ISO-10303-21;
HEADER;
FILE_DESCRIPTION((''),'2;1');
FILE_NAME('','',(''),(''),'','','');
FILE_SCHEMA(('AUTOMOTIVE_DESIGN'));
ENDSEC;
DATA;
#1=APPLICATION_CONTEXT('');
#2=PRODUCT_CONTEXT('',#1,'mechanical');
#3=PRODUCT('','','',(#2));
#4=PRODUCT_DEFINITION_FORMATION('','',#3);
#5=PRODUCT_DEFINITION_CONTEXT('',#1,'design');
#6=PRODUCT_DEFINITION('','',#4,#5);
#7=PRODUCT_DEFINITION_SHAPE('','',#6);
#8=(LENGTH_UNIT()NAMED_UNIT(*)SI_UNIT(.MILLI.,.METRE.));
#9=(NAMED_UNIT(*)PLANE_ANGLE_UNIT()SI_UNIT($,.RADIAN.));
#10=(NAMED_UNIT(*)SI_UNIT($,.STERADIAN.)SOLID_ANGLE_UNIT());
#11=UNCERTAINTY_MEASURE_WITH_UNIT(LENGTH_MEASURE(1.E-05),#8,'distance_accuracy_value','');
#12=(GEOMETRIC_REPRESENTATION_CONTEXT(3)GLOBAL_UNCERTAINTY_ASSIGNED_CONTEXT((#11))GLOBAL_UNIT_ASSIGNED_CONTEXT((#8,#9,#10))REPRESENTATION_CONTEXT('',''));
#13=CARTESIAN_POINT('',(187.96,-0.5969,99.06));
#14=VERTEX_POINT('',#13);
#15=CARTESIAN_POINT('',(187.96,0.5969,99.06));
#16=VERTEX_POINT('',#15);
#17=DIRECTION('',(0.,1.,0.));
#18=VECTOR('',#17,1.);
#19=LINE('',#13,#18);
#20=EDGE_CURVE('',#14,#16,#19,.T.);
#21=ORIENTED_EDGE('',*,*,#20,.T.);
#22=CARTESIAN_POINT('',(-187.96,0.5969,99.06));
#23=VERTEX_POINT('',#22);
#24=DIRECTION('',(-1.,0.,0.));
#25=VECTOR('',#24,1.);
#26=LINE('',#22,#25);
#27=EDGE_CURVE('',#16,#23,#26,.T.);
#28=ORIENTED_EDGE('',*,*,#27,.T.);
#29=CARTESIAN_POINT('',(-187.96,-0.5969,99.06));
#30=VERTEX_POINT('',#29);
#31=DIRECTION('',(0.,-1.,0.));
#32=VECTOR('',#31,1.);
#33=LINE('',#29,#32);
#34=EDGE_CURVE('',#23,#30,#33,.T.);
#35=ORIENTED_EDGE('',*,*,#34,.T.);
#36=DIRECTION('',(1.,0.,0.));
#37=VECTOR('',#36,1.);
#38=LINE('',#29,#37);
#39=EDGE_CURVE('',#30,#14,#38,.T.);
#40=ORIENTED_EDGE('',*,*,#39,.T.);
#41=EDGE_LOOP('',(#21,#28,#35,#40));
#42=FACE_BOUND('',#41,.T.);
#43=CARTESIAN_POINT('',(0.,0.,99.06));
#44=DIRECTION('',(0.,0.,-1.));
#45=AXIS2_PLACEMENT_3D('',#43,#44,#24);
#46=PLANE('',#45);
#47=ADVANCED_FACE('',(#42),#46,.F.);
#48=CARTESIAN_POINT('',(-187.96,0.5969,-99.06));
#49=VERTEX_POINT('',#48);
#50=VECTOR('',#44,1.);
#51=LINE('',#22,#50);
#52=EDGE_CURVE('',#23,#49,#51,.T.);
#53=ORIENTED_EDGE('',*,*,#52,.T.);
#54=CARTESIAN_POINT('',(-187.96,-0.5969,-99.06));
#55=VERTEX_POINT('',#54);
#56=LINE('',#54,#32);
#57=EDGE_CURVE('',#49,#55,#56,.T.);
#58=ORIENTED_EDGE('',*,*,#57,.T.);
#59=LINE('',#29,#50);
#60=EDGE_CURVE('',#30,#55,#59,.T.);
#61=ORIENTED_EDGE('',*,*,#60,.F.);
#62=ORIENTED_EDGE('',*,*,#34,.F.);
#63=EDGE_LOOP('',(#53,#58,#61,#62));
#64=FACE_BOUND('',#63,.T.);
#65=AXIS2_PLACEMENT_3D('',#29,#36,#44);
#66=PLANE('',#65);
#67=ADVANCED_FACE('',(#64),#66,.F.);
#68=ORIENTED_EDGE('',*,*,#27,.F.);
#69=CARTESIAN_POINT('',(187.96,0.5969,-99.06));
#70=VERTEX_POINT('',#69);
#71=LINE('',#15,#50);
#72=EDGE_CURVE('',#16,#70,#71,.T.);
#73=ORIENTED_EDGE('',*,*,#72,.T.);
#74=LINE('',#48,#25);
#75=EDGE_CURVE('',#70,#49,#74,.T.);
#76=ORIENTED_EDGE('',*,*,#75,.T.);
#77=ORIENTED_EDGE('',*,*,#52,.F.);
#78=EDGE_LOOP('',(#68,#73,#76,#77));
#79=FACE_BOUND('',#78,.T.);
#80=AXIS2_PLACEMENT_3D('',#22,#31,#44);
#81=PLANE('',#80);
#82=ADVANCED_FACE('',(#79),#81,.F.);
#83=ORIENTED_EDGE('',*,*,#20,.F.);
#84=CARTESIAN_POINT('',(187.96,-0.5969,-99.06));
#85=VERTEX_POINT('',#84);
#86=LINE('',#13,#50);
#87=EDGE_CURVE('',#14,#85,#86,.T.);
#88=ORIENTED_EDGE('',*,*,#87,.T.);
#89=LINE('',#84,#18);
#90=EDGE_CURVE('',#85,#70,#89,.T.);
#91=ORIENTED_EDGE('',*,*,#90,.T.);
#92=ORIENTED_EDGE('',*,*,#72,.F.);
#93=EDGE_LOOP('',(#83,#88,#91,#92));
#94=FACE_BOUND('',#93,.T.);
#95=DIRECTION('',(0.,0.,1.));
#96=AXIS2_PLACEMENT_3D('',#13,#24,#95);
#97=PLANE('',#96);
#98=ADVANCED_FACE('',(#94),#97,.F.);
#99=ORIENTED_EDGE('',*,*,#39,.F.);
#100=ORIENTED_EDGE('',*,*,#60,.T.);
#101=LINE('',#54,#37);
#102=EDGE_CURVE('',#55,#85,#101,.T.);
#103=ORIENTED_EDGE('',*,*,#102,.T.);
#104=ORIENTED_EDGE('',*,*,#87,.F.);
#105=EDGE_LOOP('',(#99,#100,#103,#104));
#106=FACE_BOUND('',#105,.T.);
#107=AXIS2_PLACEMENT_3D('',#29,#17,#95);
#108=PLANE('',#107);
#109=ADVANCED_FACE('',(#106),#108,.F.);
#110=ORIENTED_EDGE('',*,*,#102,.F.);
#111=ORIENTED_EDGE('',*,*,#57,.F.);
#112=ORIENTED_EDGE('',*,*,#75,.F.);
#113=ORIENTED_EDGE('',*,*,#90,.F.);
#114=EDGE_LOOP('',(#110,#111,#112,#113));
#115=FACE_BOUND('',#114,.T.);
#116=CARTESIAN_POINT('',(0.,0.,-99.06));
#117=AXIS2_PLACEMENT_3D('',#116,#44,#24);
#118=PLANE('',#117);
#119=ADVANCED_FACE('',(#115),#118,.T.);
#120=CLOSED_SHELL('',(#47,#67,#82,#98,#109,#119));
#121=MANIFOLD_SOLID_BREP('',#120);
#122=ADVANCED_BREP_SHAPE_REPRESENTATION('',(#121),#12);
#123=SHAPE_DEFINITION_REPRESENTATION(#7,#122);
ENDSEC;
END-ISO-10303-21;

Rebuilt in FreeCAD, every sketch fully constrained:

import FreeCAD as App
import Part
import Sketcher
Q = App.Units.Quantity


def add_polygon(sketch, points):
    """Adds a closed chain of lines whose ends are joined by coincident constraints."""
    first, n = sketch.GeometryCount, len(points)
    for a, b in zip(points, points[1:] + points[:1]):
        sketch.addGeometry(Part.LineSegment(App.Vector(*a, 0), App.Vector(*b, 0)), False)
    for i in range(n):
        sketch.addConstraint(Sketcher.Constraint("Coincident", first + i, 2, first + (i + 1) % n, 1))

doc = App.newDocument("Part")
params = doc.addObject("Spreadsheet::Sheet", "Params")
for row, (alias, value) in enumerate([
    ("sketch1_width", "14.8 in"),
    ("sketch1_height", "0.047 in"),
    ("pad1_length", "7.8 in"),
], start=1):
    params.set(f"A{row}", alias)
    params.set(f"B{row}", "=" + value)
    params.setAlias(f"B{row}", alias)

body = doc.addObject("PartDesign::Body", "Body")

# Sketch on XY plane
sketch1 = doc.addObject("Sketcher::SketchObject", "Sketch")
body.addObject(sketch1)
sketch1.AttachmentSupport = (doc.XY_Plane, [""])
sketch1.MapMode = "FlatFace"
add_polygon(sketch1, [(-187.96, 0.5969), (-187.96, -0.5969), (187.96, -0.5969), (187.96, 0.5969)])  # lines 0-3
sketch1.addConstraint([
    Sketcher.Constraint("Vertical", 0),
    Sketcher.Constraint("Horizontal", 1),
    Sketcher.Constraint("Vertical", 2),
    Sketcher.Constraint("Horizontal", 3),
    Sketcher.Constraint("Symmetric", 0, 2, 2, 2, -1, 1),
    Sketcher.Constraint("DistanceX", 1, 1, 1, 2, Q("14.8 in")),
    Sketcher.Constraint("DistanceY", 0, 2, 0, 1, Q("0.047 in")),
])
sketch1.setExpression("Constraints[9]", "Params.sketch1_width")
sketch1.setExpression("Constraints[10]", "Params.sketch1_height")
pad1 = doc.addObject("PartDesign::Pad", "Pad")
body.addObject(pad1)
pad1.Profile = sketch1
pad1.setExpression("Length", "Params.pad1_length")
pad1.Midplane = True

doc.recompute()
